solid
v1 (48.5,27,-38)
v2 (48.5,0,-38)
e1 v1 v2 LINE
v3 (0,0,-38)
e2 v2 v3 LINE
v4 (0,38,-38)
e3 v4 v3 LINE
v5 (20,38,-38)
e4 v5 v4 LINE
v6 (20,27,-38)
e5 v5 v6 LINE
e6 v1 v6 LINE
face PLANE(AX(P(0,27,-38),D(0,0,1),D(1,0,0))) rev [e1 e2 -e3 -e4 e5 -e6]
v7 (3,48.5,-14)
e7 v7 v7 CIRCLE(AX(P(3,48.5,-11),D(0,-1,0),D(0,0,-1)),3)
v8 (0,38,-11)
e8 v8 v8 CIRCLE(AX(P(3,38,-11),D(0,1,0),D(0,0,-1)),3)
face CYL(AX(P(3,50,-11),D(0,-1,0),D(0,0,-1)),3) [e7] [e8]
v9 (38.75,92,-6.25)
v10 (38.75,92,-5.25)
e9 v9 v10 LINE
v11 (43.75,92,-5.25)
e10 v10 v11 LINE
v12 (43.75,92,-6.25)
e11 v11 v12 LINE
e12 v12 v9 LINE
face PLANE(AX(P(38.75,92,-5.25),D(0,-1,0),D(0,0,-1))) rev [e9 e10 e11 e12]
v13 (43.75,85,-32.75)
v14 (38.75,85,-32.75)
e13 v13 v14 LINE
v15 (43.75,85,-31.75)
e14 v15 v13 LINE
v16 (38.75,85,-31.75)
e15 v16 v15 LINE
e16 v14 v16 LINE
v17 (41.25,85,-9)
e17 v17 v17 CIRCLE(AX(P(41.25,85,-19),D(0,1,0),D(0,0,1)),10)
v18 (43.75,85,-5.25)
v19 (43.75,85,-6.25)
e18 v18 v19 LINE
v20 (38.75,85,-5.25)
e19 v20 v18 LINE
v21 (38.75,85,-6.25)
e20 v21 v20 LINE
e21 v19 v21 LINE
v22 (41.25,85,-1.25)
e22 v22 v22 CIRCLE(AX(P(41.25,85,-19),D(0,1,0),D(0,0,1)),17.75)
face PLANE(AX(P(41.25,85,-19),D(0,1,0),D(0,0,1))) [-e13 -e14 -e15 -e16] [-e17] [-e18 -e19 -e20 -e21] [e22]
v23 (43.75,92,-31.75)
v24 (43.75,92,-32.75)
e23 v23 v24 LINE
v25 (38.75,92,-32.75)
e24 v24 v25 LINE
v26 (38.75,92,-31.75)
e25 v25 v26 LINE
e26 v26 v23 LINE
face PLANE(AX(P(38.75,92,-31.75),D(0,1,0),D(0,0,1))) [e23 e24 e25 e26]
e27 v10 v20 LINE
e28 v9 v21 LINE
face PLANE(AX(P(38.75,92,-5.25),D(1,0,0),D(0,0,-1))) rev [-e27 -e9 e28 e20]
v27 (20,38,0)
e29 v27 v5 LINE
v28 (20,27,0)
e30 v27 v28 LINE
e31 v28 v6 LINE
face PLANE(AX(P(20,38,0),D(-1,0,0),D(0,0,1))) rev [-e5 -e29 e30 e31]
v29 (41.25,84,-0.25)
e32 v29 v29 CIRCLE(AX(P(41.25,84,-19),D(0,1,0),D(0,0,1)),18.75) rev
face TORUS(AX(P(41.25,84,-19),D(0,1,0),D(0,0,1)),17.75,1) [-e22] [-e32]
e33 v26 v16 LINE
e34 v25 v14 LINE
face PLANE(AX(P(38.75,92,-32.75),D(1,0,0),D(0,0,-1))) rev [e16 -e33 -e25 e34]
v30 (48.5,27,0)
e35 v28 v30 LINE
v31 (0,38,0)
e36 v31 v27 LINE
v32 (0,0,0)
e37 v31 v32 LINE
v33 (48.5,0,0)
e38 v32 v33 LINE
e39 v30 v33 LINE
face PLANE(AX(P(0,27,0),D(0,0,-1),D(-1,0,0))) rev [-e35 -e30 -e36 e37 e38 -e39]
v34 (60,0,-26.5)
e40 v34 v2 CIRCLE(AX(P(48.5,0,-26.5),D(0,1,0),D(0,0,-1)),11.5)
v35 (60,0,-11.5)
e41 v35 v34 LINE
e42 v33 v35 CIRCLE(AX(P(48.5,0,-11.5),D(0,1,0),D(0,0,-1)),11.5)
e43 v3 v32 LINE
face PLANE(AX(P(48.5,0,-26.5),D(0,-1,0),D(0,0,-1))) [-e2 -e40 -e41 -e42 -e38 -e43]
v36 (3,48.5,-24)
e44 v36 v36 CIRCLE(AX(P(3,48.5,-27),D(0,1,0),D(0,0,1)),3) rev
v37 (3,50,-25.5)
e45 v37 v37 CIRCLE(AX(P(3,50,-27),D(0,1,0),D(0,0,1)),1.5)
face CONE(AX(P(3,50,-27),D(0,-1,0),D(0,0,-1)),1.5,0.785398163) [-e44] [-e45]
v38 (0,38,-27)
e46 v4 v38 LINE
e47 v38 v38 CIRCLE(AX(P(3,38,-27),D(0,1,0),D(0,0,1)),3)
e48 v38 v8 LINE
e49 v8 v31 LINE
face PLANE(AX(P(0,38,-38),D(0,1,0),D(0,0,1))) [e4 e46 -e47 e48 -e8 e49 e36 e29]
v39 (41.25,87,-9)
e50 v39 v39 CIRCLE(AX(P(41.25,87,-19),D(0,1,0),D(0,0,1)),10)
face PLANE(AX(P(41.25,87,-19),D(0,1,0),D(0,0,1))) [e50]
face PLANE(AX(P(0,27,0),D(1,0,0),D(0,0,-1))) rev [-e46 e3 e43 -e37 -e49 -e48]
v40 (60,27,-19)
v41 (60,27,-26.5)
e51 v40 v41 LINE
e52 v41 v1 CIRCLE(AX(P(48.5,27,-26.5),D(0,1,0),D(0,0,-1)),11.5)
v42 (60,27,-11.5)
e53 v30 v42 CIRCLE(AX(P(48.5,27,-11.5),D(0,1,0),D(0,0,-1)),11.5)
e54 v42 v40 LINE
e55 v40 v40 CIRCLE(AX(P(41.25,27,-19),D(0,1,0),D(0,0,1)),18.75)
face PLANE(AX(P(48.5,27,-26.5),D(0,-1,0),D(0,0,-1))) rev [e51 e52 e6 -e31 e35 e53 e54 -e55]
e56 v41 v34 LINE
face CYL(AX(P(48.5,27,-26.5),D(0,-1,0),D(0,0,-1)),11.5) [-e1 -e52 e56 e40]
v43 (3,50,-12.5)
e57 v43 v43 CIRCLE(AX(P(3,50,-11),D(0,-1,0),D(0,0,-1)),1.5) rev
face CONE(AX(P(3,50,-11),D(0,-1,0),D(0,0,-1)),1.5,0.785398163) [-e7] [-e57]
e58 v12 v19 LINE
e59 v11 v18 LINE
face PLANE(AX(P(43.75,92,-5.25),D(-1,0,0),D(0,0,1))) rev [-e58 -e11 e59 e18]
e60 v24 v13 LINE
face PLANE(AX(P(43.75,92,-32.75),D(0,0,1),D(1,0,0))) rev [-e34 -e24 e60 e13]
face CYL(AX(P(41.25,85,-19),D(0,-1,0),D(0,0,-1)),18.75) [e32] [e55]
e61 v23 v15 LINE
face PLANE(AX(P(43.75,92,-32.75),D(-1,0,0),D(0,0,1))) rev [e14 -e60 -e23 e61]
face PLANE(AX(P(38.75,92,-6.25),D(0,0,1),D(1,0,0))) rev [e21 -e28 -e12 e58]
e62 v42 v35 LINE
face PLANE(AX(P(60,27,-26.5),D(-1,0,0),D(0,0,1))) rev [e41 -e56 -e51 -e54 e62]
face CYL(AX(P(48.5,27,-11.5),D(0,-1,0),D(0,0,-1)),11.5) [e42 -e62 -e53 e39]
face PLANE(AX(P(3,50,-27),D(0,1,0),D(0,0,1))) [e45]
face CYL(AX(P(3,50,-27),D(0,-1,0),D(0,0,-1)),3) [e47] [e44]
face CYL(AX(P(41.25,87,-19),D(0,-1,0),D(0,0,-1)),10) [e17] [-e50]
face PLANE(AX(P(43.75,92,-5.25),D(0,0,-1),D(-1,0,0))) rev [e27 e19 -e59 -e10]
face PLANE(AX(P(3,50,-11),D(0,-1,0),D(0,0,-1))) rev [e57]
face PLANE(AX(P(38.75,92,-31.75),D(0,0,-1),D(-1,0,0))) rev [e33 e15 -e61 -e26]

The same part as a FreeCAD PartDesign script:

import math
import FreeCAD as App
import Part
import Sketcher


def edges_at(feature, points):
    """Names of the edges that pass closest to the given points."""
    edges = feature.Shape.Edges
    near = lambda p: min(range(len(edges)), key=lambda i: edges[i].distToShape(Part.Vertex(*p))[0])
    return sorted({f"Edge{near(p) + 1}" for p in points})

doc = App.newDocument("Part")
body = doc.addObject("PartDesign::Body", "Body")

# Sketch on XZ plane
sketch1 = body.newObject("Sketcher::SketchObject", "Sketch")
sketch1.AttachmentSupport = (doc.getObject("XZ_Plane"), [""])
sketch1.MapMode = "FlatFace"
sketch1.addGeometry(Part.LineSegment(App.Vector(0, 0, 0), App.Vector(48, 0, 0)), False)
sketch1.addGeometry(Part.ArcOfCircle(Part.Circle(App.Vector(49, -11, 0), App.Vector(0, 0, 1), 11), math.radians(0), math.radians(90)), False)
sketch1.addGeometry(Part.LineSegment(App.Vector(60, -12, 0), App.Vector(60, -26, 0)), False)
sketch1.addGeometry(Part.ArcOfCircle(Part.Circle(App.Vector(49, -27, 0), App.Vector(0, 0, 1), 11), math.radians(-90), math.radians(0)), False)
sketch1.addGeometry(Part.LineSegment(App.Vector(48, -38, 0), App.Vector(0, -38, 0)), False)
sketch1.addGeometry(Part.LineSegment(App.Vector(0, -38, 0), App.Vector(0, 0, 0)), False)
sketch1.addConstraint(Sketcher.Constraint("Tangent", 0, 2, 1, 2))
sketch1.addConstraint(Sketcher.Constraint("Tangent", 1, 1, 2, 1))
sketch1.addConstraint(Sketcher.Constraint("Tangent", 2, 2, 3, 2))
sketch1.addConstraint(Sketcher.Constraint("Tangent", 3, 1, 4, 1))
sketch1.addConstraint(Sketcher.Constraint("Coincident", 4, 2, 5, 1))
sketch1.addConstraint(Sketcher.Constraint("Coincident", 5, 2, 0, 1))
sketch1.addConstraint(Sketcher.Constraint("Horizontal", 0))
sketch1.addConstraint(Sketcher.Constraint("Vertical", 2))
sketch1.addConstraint(Sketcher.Constraint("Horizontal", 4))
sketch1.addConstraint(Sketcher.Constraint("Vertical", 5))
sketch1.addConstraint(Sketcher.Constraint("Coincident", 5, 2, -1, 1))
sketch1.addConstraint(Sketcher.Constraint("Equal", 1, 3))
sketch1.addConstraint(Sketcher.Constraint("Radius", 1, 11.5))
sketch1.addConstraint(Sketcher.Constraint("DistanceY", 2, 2, 2, 1, 15.0))
sketch1.addConstraint(Sketcher.Constraint("DistanceX", 0, 1, 0, 2, 48.5))
pad1 = body.newObject("PartDesign::Pad", "Pad")
pad1.Profile = sketch1
pad1.Length = 27
pad1.Reversed = True

# Sketch on XZ plane
sketch2 = body.newObject("Sketcher::SketchObject", "Sketch001")
sketch2.AttachmentSupport = (doc.getObject("XZ_Plane"), [""])
sketch2.MapMode = "FlatFace"
sketch2.AttachmentOffset = App.Placement(App.Vector(0, 0, -27), App.Rotation())
sketch2.addGeometry(Part.LineSegment(App.Vector(0, -38, 0), App.Vector(0, 0, 0)), False)
sketch2.addGeometry(Part.LineSegment(App.Vector(0, 0, 0), App.Vector(20, 0, 0)), False)
sketch2.addGeometry(Part.LineSegment(App.Vector(20, 0, 0), App.Vector(20, -38, 0)), False)
sketch2.addGeometry(Part.LineSegment(App.Vector(20, -38, 0), App.Vector(0, -38, 0)), False)
sketch2.addConstraint(Sketcher.Constraint("Coincident", 0, 2, 1, 1))
sketch2.addConstraint(Sketcher.Constraint("Coincident", 1, 2, 2, 1))
sketch2.addConstraint(Sketcher.Constraint("Coincident", 2, 2, 3, 1))
sketch2.addConstraint(Sketcher.Constraint("Coincident", 3, 2, 0, 1))
sketch2.addConstraint(Sketcher.Constraint("Vertical", 0))
sketch2.addConstraint(Sketcher.Constraint("Horizontal", 1))
sketch2.addConstraint(Sketcher.Constraint("Vertical", 2))
sketch2.addConstraint(Sketcher.Constraint("Horizontal", 3))
sketch2.addConstraint(Sketcher.Constraint("Coincident", 0, 2, -1, 1))
sketch2.addConstraint(Sketcher.Constraint("DistanceX", 1, 1, 1, 2, 20.0))
sketch2.addConstraint(Sketcher.Constraint("DistanceY", 0, 1, 0, 2, 38.0))
pad2 = body.newObject("PartDesign::Pad", "Pad001")
pad2.Profile = sketch2
pad2.Length = 11
pad2.Reversed = True

# Sketch on XZ plane
sketch3 = body.newObject("Sketcher::SketchObject", "Sketch002")
sketch3.AttachmentSupport = (doc.getObject("XZ_Plane"), [""])
sketch3.MapMode = "FlatFace"
sketch3.AttachmentOffset = App.Placement(App.Vector(0, 0, -27), App.Rotation())
sketch3.addGeometry(Part.Circle(App.Vector(41, -19, 0), App.Vector(0, 0, 1), 19), False)
sketch3.addConstraint(Sketcher.Constraint("Diameter", 0, 37.5))
sketch3.addConstraint(Sketcher.Constraint("DistanceY", 0, 3, -1, 1, 19.0))
sketch3.addConstraint(Sketcher.Constraint("DistanceX", -1, 1, 0, 3, 41.25))
pad3 = body.newObject("PartDesign::Pad", "Pad002")
pad3.Profile = sketch3
pad3.Length = 58
pad3.Reversed = True

# Sketch on XZ plane
sketch4 = body.newObject("Sketcher::SketchObject", "Sketch003")
sketch4.AttachmentSupport = (doc.getObject("XZ_Plane"), [""])
sketch4.MapMode = "FlatFace"
sketch4.AttachmentOffset = App.Placement(App.Vector(0, 0, -85), App.Rotation())
sketch4.addGeometry(Part.Circle(App.Vector(41, -19, 0), App.Vector(0, 0, 1), 10), False)
sketch4.addConstraint(Sketcher.Constraint("Diameter", 0, 20.0))
sketch4.addConstraint(Sketcher.Constraint("DistanceY", 0, 3, -1, 1, 19.0))
sketch4.addConstraint(Sketcher.Constraint("DistanceX", -1, 1, 0, 3, 41.25))
pad4 = body.newObject("PartDesign::Pad", "Pad003")
pad4.Profile = sketch4
pad4.Length = 2
pad4.Reversed = True

# Sketch on XZ plane
sketch5 = body.newObject("Sketcher::SketchObject", "Sketch004")
sketch5.AttachmentSupport = (doc.getObject("XZ_Plane"), [""])
sketch5.MapMode = "FlatFace"
sketch5.AttachmentOffset = App.Placement(App.Vector(0, 0, -38), App.Rotation())
sketch5.addGeometry(Part.Circle(App.Vector(3, -27, 0), App.Vector(0, 0, 1), 3), False)
sketch5.addGeometry(Part.Circle(App.Vector(3, -11, 0), App.Vector(0, 0, 1), 3), False)
sketch5.addConstraint(Sketcher.Constraint("Equal", 0, 1))
sketch5.addConstraint(Sketcher.Constraint("Vertical", 0, 3, 1, 3))
sketch5.addConstraint(Sketcher.Constraint("Diameter", 0, 6.0))
sketch5.addConstraint(Sketcher.Constraint("DistanceX", -1, 1, 0, 3, 3.0))
sketch5.addConstraint(Sketcher.Constraint("DistanceY", 0, 3, -1, 1, 27.0))
sketch5.addConstraint(Sketcher.Constraint("DistanceY", 1, 3, -1, 1, 11.0))
pad5 = body.newObject("PartDesign::Pad", "Pad004")
pad5.Profile = sketch5
pad5.Length = 12
pad5.Reversed = True
doc.recompute()

chamfer = body.newObject("PartDesign::Chamfer", "Chamfer")
chamfer.Base = (pad5, edges_at(pad5, [(0, 50, -27), (0, 50, -11)]))
chamfer.Size = 1.5
doc.recompute()

fillet = body.newObject("PartDesign::Fillet", "Fillet")
fillet.Base = (chamfer, edges_at(chamfer, [(22.5, 85, -19)]))
fillet.Radius = 1

# Sketch on XZ plane
sketch6 = body.newObject("Sketcher::SketchObject", "Sketch005")
sketch6.AttachmentSupport = (doc.getObject("XZ_Plane"), [""])
sketch6.MapMode = "FlatFace"
sketch6.AttachmentOffset = App.Placement(App.Vector(0, 0, -85), App.Rotation())
sketch6.addGeometry(Part.LineSegment(App.Vector(38.8, -32.8, 0), App.Vector(38.8, -31.8, 0)), False)
sketch6.addGeometry(Part.LineSegment(App.Vector(38.8, -31.8, 0), App.Vector(43.8, -31.8, 0)), False)
sketch6.addGeometry(Part.LineSegment(App.Vector(43.8, -31.8, 0), App.Vector(43.8, -32.8, 0)), False)
sketch6.addGeometry(Part.LineSegment(App.Vector(43.8, -32.8, 0), App.Vector(38.8, -32.8, 0)), False)
sketch6.addGeometry(Part.LineSegment(App.Vector(38.8, -6.2, 0), App.Vector(38.8, -5.2, 0)), False)
sketch6.addGeometry(Part.LineSegment(App.Vector(38.8, -5.2, 0), App.Vector(43.8, -5.2, 0)), False)
sketch6.addGeometry(Part.LineSegment(App.Vector(43.8, -5.2, 0), App.Vector(43.8, -6.2, 0)), False)
sketch6.addGeometry(Part.LineSegment(App.Vector(43.8, -6.2, 0), App.Vector(38.8, -6.2, 0)), False)
sketch6.addConstraint(Sketcher.Constraint("Coincident", 0, 2, 1, 1))
sketch6.addConstraint(Sketcher.Constraint("Coincident", 1, 2, 2, 1))
sketch6.addConstraint(Sketcher.Constraint("Coincident", 2, 2, 3, 1))
sketch6.addConstraint(Sketcher.Constraint("Coincident", 3, 2, 0, 1))
sketch6.addConstraint(Sketcher.Constraint("Coincident", 4, 2, 5, 1))
sketch6.addConstraint(Sketcher.Constraint("Coincident", 5, 2, 6, 1))
sketch6.addConstraint(Sketcher.Constraint("Coincident", 6, 2, 7, 1))
sketch6.addConstraint(Sketcher.Constraint("Coincident", 7, 2, 4, 1))
sketch6.addConstraint(Sketcher.Constraint("Vertical", 0))
sketch6.addConstraint(Sketcher.Constraint("Horizontal", 1))
sketch6.addConstraint(Sketcher.Constraint("Vertical", 2))
sketch6.addConstraint(Sketcher.Constraint("Horizontal", 3))
sketch6.addConstraint(Sketcher.Constraint("Vertical", 4))
sketch6.addConstraint(Sketcher.Constraint("Horizontal", 5))
sketch6.addConstraint(Sketcher.Constraint("Vertical", 6))
sketch6.addConstraint(Sketcher.Constraint("Horizontal", 7))
sketch6.addConstraint(Sketcher.Constraint("Vertical", 3, 2, 4, 2))
sketch6.addConstraint(Sketcher.Constraint("Vertical", 2, 2, 5, 2))
sketch6.addConstraint(Sketcher.Constraint("Equal", 2, 4))
sketch6.addConstraint(Sketcher.Constraint("DistanceX", 1, 1, 1, 2, 5.0))
sketch6.addConstraint(Sketcher.Constraint("DistanceY", 0, 1, 0, 2, 1.0))
sketch6.addConstraint(Sketcher.Constraint("DistanceY", 0, 2, 4, 2, 26.5))
sketch6.addConstraint(Sketcher.Constraint("DistanceX", -1, 1, 0, 2, 38.75))
sketch6.addConstraint(Sketcher.Constraint("DistanceY", 0, 2, -1, 1, 31.75))
pad6 = body.newObject("PartDesign::Pad", "Pad005")
pad6.Profile = sketch6
pad6.Length = 7
pad6.Reversed = True

doc.recompute()
